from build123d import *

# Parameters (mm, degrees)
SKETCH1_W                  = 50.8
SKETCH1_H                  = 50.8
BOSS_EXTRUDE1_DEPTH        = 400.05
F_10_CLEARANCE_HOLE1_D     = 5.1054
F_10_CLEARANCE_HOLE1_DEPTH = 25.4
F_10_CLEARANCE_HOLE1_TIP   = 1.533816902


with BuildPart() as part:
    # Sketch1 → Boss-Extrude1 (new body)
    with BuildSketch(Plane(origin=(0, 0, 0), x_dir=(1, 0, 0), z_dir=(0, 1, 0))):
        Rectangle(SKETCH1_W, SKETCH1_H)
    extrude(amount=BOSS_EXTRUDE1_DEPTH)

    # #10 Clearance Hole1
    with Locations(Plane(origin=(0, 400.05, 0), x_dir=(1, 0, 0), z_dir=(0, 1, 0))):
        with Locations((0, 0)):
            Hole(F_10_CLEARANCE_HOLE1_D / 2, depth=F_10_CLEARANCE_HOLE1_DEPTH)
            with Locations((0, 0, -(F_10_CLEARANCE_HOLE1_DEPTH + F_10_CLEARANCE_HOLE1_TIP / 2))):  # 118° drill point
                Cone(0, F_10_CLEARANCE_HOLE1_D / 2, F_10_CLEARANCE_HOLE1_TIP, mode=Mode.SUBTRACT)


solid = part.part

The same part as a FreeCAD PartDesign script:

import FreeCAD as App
import Part
import Sketcher
Q = App.Units.Quantity


def add_polygon(sketch, points):
    """Adds a closed chain of lines whose ends are joined by coincident constraints."""
    first, n = sketch.GeometryCount, len(points)
    for a, b in zip(points, points[1:] + points[:1]):
        sketch.addGeometry(Part.LineSegment(App.Vector(*a, 0), App.Vector(*b, 0)), False)
    for i in range(n):
        sketch.addConstraint(Sketcher.Constraint("Coincident", first + i, 2, first + (i + 1) % n, 1))

doc = App.newDocument("Part")
params = doc.addObject("Spreadsheet::Sheet", "Params")
for row, (alias, value) in enumerate([
    ("sketch1_width", "2 in"),
    ("pad1_length", "15.75 in"),
    ("sketch2_diameter", "0.201 in"),
    ("hole_diameter", "0.201 in"),
    ("hole_depth", "1 in"),
], start=1):
    params.set(f"A{row}", alias)
    params.set(f"B{row}", "=" + value)
    params.setAlias(f"B{row}", alias)

body = doc.addObject("PartDesign::Body", "Body")

# Sketch on XZ plane
sketch1 = body.newObject("Sketcher::SketchObject", "Sketch")
sketch1.AttachmentSupport = (doc.getObject("XZ_Plane"), [""])
sketch1.MapMode = "FlatFace"
add_polygon(sketch1, [(-25.4, -25.4), (-25.4, 25.4), (25.4, 25.4), (25.4, -25.4)])  # lines 0-3
sketch1.addConstraint([
    Sketcher.Constraint("Vertical", 0),
    Sketcher.Constraint("Horizontal", 1),
    Sketcher.Constraint("Vertical", 2),
    Sketcher.Constraint("Horizontal", 3),
    Sketcher.Constraint("Symmetric", 0, 2, 2, 2, -1, 1),
    Sketcher.Constraint("Equal", 3, 0),
    Sketcher.Constraint("DistanceX", 1, 1, 1, 2, Q("2 in")),
])
sketch1.setExpression("Constraints[10]", "Params.sketch1_width")
pad1 = body.newObject("PartDesign::Pad", "Pad")
pad1.Profile = sketch1
pad1.setExpression("Length", "Params.pad1_length")
pad1.Reversed = True

# Sketch on XZ plane
sketch2 = body.newObject("Sketcher::SketchObject", "Sketch001")
sketch2.AttachmentSupport = (doc.getObject("XZ_Plane"), [""])
sketch2.MapMode = "FlatFace"
sketch2.AttachmentOffset = App.Placement(App.Vector(0, 0, -15.75 * 25.4), App.Rotation())
sketch2.addGeometry(Part.Circle(App.Vector(0, 0, 0), App.Vector(0, 0, 1), 2.5527), False)
sketch2.addConstraint([
    Sketcher.Constraint("Coincident", 0, 3, -1, 1),
    Sketcher.Constraint("Diameter", 0, Q("0.201 in")),
])
sketch2.setExpression("Constraints[1]", "Params.sketch2_diameter")
doc.recompute()
hole = body.newObject("PartDesign::Hole", "Hole")
hole.Profile = sketch2
hole.ThreadType = "None"
hole.setExpression("Diameter", "Params.hole_diameter")
hole.DepthType = "Dimension"
hole.setExpression("Depth", "Params.hole_depth")
hole.DrillPoint = "Angled"
hole.DrillPointAngle = 118
hole.Reversed = True

doc.recompute()
